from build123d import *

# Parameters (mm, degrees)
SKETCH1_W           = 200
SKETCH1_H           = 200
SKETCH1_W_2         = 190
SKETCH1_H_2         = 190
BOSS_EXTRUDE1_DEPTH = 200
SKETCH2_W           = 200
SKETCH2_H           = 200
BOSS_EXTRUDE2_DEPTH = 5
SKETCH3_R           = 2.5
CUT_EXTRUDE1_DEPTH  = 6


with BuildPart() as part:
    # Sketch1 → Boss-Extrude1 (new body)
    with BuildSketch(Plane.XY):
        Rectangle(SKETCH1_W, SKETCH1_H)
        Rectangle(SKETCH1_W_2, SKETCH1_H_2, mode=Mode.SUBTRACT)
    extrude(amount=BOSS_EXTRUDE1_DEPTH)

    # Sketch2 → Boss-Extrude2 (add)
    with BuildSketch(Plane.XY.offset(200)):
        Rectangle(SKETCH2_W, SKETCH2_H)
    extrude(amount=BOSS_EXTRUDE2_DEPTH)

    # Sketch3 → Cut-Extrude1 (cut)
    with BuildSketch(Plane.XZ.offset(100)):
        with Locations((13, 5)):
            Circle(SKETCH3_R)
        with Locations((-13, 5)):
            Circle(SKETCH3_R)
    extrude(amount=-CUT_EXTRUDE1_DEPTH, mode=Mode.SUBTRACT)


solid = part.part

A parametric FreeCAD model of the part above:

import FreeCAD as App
import Part
import Sketcher
from FreeCAD import Vector
Q = App.Units.Quantity


def add_polygon(sketch, points):
    """Adds a closed chain of lines whose ends are joined by coincident constraints."""
    first, n = sketch.GeometryCount, len(points)
    for a, b in zip(points, points[1:] + points[:1]):
        sketch.addGeometry(Part.LineSegment(App.Vector(*a, 0), App.Vector(*b, 0)), False)
    for i in range(n):
        sketch.addConstraint(Sketcher.Constraint("Coincident", first + i, 2, first + (i + 1) % n, 1))

doc = App.newDocument("Part")
body = doc.addObject("PartDesign::Body", "Body")

# Sketch on XY plane
sketch1 = doc.addObject("Sketcher::SketchObject", "Sketch")
body.addObject(sketch1)
sketch1.AttachmentSupport = (doc.XY_Plane, [""])
sketch1.MapMode = "FlatFace"
add_polygon(sketch1, [(-100, 100), (-100, -100), (100, -100), (100, 100)])  # lines 0-3
add_polygon(sketch1, [(95, -95), (-95, -95), (-95, 95), (95, 95)])  # lines 4-7
sketch1.addConstraint([
    Sketcher.Constraint("Vertical", 0),
    Sketcher.Constraint("Horizontal", 1),
    Sketcher.Constraint("Vertical", 2),
    Sketcher.Constraint("Horizontal", 3),
    Sketcher.Constraint("Horizontal", 4),
    Sketcher.Constraint("Vertical", 5),
    Sketcher.Constraint("Horizontal", 6),
    Sketcher.Constraint("Vertical", 7),
    Sketcher.Constraint("Symmetric", 0, 2, 2, 2, -1, 1),
    Sketcher.Constraint("Symmetric", 4, 2, 6, 2, -1, 1),
    Sketcher.Constraint("Equal", 3, 0),
    Sketcher.Constraint("Equal", 6, 5),
    Sketcher.Constraint("DistanceX", 1, 1, 1, 2, Q("200 mm")),
    Sketcher.Constraint("DistanceX", 4, 2, 4, 1, Q("190 mm")),
])
pad1 = doc.addObject("PartDesign::Pad", "Pad")
body.addObject(pad1)
pad1.Profile = sketch1
pad1.Length = 200

# Sketch on XY plane
sketch2 = doc.addObject("Sketcher::SketchObject", "Sketch001")
body.addObject(sketch2)
sketch2.AttachmentSupport = (doc.XY_Plane, [""])
sketch2.MapMode = "FlatFace"
sketch2.AttachmentOffset = App.Placement(Vector(0, 0, 200), App.Rotation())
add_polygon(sketch2, [(-100, 100), (-100, -100), (100, -100), (100, 100)])  # lines 0-3
sketch2.addConstraint([
    Sketcher.Constraint("Vertical", 0),
    Sketcher.Constraint("Horizontal", 1),
    Sketcher.Constraint("Vertical", 2),
    Sketcher.Constraint("Horizontal", 3),
    Sketcher.Constraint("Symmetric", 0, 2, 2, 2, -1, 1),
    Sketcher.Constraint("Equal", 3, 0),
    Sketcher.Constraint("DistanceX", 1, 1, 1, 2, Q("200 mm")),
])
pad2 = doc.addObject("PartDesign::Pad", "Pad001")
body.addObject(pad2)
pad2.Profile = sketch2
pad2.Length = 5

# Sketch on XZ plane
sketch3 = doc.addObject("Sketcher::SketchObject", "Sketch002")
body.addObject(sketch3)
sketch3.AttachmentSupport = (doc.XZ_Plane, [""])
sketch3.MapMode = "FlatFace"
sketch3.AttachmentOffset = App.Placement(Vector(0, 0, 100), App.Rotation())
sketch3.addGeometry([
    Part.Circle(Vector(13, 5, 0), Vector(0, 0, 1), 2.5),
    Part.Circle(Vector(-13, 5, 0), Vector(0, 0, 1), 2.5),
], False)
sketch3.addConstraint([
    Sketcher.Constraint("Equal", 0, 1),
    Sketcher.Constraint("Symmetric", 0, 3, 1, 3, -2),
    Sketcher.Constraint("Diameter", 0, Q("5 mm")),
    Sketcher.Constraint("DistanceX", -1, 1, 0, 3, Q("13 mm")),
    Sketcher.Constraint("DistanceY", -1, 1, 0, 3, Q("5 mm")),
])
pocket1 = doc.addObject("PartDesign::Pocket", "Pocket")
body.addObject(pocket1)
pocket1.Profile = sketch3
pocket1.Length = 6

doc.recompute()
